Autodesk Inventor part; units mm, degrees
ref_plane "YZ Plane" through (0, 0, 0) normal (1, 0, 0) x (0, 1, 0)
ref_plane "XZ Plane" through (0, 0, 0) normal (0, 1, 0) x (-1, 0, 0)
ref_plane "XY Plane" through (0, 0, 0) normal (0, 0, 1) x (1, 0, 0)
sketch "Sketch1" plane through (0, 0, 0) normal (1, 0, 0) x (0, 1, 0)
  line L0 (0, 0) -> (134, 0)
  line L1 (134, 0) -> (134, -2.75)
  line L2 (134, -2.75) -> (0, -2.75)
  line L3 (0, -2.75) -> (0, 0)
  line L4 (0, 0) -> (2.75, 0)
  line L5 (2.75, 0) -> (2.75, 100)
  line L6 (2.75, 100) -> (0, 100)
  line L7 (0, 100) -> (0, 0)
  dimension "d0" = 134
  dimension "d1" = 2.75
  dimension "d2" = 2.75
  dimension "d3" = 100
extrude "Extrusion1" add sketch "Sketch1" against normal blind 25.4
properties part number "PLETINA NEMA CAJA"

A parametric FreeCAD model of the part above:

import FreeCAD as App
import Part
import Sketcher
from FreeCAD import Vector
Q = App.Units.Quantity

doc = App.newDocument("Part")
body = doc.addObject("PartDesign::Body", "Body")

# Sketch on YZ plane
sketch1 = body.newObject("Sketcher::SketchObject", "Sketch")
sketch1.AttachmentSupport = (doc.getObject("YZ_Plane"), [""])
sketch1.MapMode = "FlatFace"
sketch1.addGeometry(Part.LineSegment(Vector(0, 100, 0), Vector(0, -2.8, 0)), False)
sketch1.addGeometry(Part.LineSegment(Vector(0, -2.8, 0), Vector(134, -2.8, 0)), False)
sketch1.addGeometry(Part.LineSegment(Vector(134, -2.8, 0), Vector(134, 0, 0)), False)
sketch1.addGeometry(Part.LineSegment(Vector(134, 0, 0), Vector(2.8, 0, 0)), False)
sketch1.addGeometry(Part.LineSegment(Vector(2.8, 0, 0), Vector(2.8, 100, 0)), False)
sketch1.addGeometry(Part.LineSegment(Vector(2.8, 100, 0), Vector(0, 100, 0)), False)
sketch1.addConstraint(Sketcher.Constraint("Coincident", 0, 2, 1, 1))
sketch1.addConstraint(Sketcher.Constraint("Coincident", 1, 2, 2, 1))
sketch1.addConstraint(Sketcher.Constraint("Coincident", 2, 2, 3, 1))
sketch1.addConstraint(Sketcher.Constraint("Coincident", 3, 2, 4, 1))
sketch1.addConstraint(Sketcher.Constraint("Coincident", 4, 2, 5, 1))
sketch1.addConstraint(Sketcher.Constraint("Coincident", 5, 2, 0, 1))
sketch1.addConstraint(Sketcher.Constraint("Vertical", 0))
sketch1.addConstraint(Sketcher.Constraint("Horizontal", 1))
sketch1.addConstraint(Sketcher.Constraint("Vertical", 2))
sketch1.addConstraint(Sketcher.Constraint("Horizontal", 3))
sketch1.addConstraint(Sketcher.Constraint("Vertical", 4))
sketch1.addConstraint(Sketcher.Constraint("Horizontal", 5))
sketch1.addConstraint(Sketcher.Constraint("PointOnObject", 0, 2, -2))
sketch1.addConstraint(Sketcher.Constraint("PointOnObject", 2, 2, -1))
sketch1.addConstraint(Sketcher.Constraint("Equal", 5, 2))
sketch1.addConstraint(Sketcher.Constraint("DistanceY", 4, 1, 4, 2, Q("3.937 in")))
sketch1.addConstraint(Sketcher.Constraint("DistanceX", 1, 1, 1, 2, Q("5.2756 in")))
sketch1.addConstraint(Sketcher.Constraint("DistanceX", 5, 2, 5, 1, 2.75))
pad1 = body.newObject("PartDesign::Pad", "Pad")
pad1.Profile = sketch1
pad1.Length = Q("1 in")
pad1.Reversed = True

doc.recompute()
